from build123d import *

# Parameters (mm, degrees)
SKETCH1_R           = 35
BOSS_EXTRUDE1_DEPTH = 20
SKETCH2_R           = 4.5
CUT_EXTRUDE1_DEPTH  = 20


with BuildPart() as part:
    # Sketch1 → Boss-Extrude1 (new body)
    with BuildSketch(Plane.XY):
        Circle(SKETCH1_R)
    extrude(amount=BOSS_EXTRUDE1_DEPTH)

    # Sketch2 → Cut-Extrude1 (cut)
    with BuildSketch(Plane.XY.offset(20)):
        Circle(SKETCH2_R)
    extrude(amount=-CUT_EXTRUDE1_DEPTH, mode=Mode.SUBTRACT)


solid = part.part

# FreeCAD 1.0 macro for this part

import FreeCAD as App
import Part
import Sketcher

V = App.Vector
Q = App.Units.Quantity

doc = App.newDocument("Part")
body = doc.addObject("PartDesign::Body", "Body")

# Sketch on XY plane
sketch1 = body.newObject("Sketcher::SketchObject", "Sketch")
sketch1.AttachmentSupport = (doc.getObject("XY_Plane"), [""])
sketch1.MapMode = "FlatFace"
sketch1.addGeometry(Part.Circle(V(0, 0, 0), V(0, 0, 1), 35), False)
sketch1.addConstraint([
    Sketcher.Constraint("Coincident", 0, 3, -1, 1),
    Sketcher.Constraint("Diameter", 0, Q("70 mm")),
])
pad1 = body.newObject("PartDesign::Pad", "Pad")
pad1.Profile = sketch1
pad1.Length = 20

# Sketch on XY plane
sketch2 = body.newObject("Sketcher::SketchObject", "Sketch001")
sketch2.AttachmentSupport = (doc.getObject("XY_Plane"), [""])
sketch2.MapMode = "FlatFace"
sketch2.AttachmentOffset = App.Placement(V(0, 0, 20), App.Rotation())
sketch2.addGeometry(Part.Circle(V(0, 0, 0), V(0, 0, 1), 4.5), False)
sketch2.addConstraint([
    Sketcher.Constraint("Coincident", 0, 3, -1, 1),
    Sketcher.Constraint("Diameter", 0, Q("9 mm")),
])
pocket1 = body.newObject("PartDesign::Pocket", "Pocket")
pocket1.Profile = sketch2
pocket1.Length = 20

doc.recompute()
